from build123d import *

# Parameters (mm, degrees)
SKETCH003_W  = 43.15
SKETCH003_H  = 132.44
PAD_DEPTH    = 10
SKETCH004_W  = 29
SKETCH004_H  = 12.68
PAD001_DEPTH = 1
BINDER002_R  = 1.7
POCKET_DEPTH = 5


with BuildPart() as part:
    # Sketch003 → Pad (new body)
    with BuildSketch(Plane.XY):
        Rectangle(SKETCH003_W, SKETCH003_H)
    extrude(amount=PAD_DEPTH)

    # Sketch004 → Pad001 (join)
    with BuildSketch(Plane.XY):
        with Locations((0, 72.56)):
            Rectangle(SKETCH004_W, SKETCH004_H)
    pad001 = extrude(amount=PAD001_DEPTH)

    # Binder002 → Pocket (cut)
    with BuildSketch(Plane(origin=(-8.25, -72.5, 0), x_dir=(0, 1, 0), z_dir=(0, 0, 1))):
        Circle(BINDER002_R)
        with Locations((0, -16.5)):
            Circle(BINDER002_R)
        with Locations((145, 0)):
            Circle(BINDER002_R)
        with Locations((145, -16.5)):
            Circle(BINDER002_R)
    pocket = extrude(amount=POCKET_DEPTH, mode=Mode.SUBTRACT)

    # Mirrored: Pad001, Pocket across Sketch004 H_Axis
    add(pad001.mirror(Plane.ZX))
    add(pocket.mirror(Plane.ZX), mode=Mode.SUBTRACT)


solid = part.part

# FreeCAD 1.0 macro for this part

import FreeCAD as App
import Part
import Sketcher

V = App.Vector
Q = App.Units.Quantity

doc = App.newDocument("Part")
body = doc.addObject("PartDesign::Body", "Body")

# Sketch on XY plane
sketch1 = doc.addObject("Sketcher::SketchObject", "Sketch")
body.addObject(sketch1)
sketch1.AttachmentSupport = (doc.XY_Plane, [""])
sketch1.MapMode = "FlatFace"
sketch1.addGeometry([
    Part.LineSegment(V(-22, 66, 0), V(-22, -66, 0)),
    Part.LineSegment(V(-22, -66, 0), V(22, -66, 0)),
    Part.LineSegment(V(22, -66, 0), V(22, 66, 0)),
    Part.LineSegment(V(22, 66, 0), V(-22, 66, 0)),
], False)
sketch1.addConstraint([
    Sketcher.Constraint("Coincident", 0, 2, 1, 1),
    Sketcher.Constraint("Coincident", 1, 2, 2, 1),
    Sketcher.Constraint("Coincident", 2, 2, 3, 1),
    Sketcher.Constraint("Coincident", 3, 2, 0, 1),
    Sketcher.Constraint("Vertical", 0),
    Sketcher.Constraint("Horizontal", 1),
    Sketcher.Constraint("Vertical", 2),
    Sketcher.Constraint("Horizontal", 3),
    Sketcher.Constraint("Symmetric", 0, 2, 2, 2, -1, 1),
    Sketcher.Constraint("DistanceX", 1, 1, 1, 2, Q("43.15 mm")),
    Sketcher.Constraint("DistanceY", 0, 2, 0, 1, Q("132.44 mm")),
])
pad1 = doc.addObject("PartDesign::Pad", "Pad")
body.addObject(pad1)
pad1.Profile = sketch1
pad1.Length = 10

# Sketch on XY plane
sketch2 = doc.addObject("Sketcher::SketchObject", "Sketch001")
body.addObject(sketch2)
sketch2.AttachmentSupport = (doc.XY_Plane, [""])
sketch2.MapMode = "FlatFace"
sketch2.addGeometry([
    Part.LineSegment(V(-14, 79, 0), V(-14, 66, 0)),
    Part.LineSegment(V(-14, 66, 0), V(14, 66, 0)),
    Part.LineSegment(V(14, 66, 0), V(14, 79, 0)),
    Part.LineSegment(V(14, 79, 0), V(-14, 79, 0)),
], False)
sketch2.addConstraint([
    Sketcher.Constraint("Coincident", 0, 2, 1, 1),
    Sketcher.Constraint("Coincident", 1, 2, 2, 1),
    Sketcher.Constraint("Coincident", 2, 2, 3, 1),
    Sketcher.Constraint("Coincident", 3, 2, 0, 1),
    Sketcher.Constraint("Vertical", 0),
    Sketcher.Constraint("Horizontal", 1),
    Sketcher.Constraint("Vertical", 2),
    Sketcher.Constraint("Horizontal", 3),
    Sketcher.Constraint("DistanceX", 1, 1, 1, 2, Q("29 mm")),
    Sketcher.Constraint("DistanceY", 0, 2, 0, 1, Q("12.68 mm")),
    Sketcher.Constraint("DistanceX", 0, 2, -1, 1, Q("14.5 mm")),
    Sketcher.Constraint("DistanceY", -1, 1, 2, 2, Q("78.9 mm")),
])
pad2 = doc.addObject("PartDesign::Pad", "Pad001")
body.addObject(pad2)
pad2.Profile = sketch2
pad2.Length = 1

# Sketch on XY plane
sketch3 = doc.addObject("Sketcher::SketchObject", "Sketch002")
body.addObject(sketch3)
sketch3.AttachmentSupport = (doc.XY_Plane, [""])
sketch3.MapMode = "FlatFace"
sketch3.addGeometry([
    Part.Circle(V(-8.2, -72.5, 0), V(0, 0, 1), 1.7),
    Part.Circle(V(8.2, -72.5, 0), V(0, 0, 1), 1.7),
    Part.Circle(V(-8.2, 72.5, 0), V(0, 0, 1), 1.7),
    Part.Circle(V(8.2, 72.5, 0), V(0, 0, 1), 1.7),
], False)
sketch3.addConstraint([
    Sketcher.Constraint("Equal", 0, 1),
    Sketcher.Constraint("Equal", 1, 2),
    Sketcher.Constraint("Equal", 2, 3),
    Sketcher.Constraint("Symmetric", 1, 3, 2, 3, -1, 1),
    Sketcher.Constraint("Symmetric", 0, 3, 3, 3, -1, 1),
    Sketcher.Constraint("Symmetric", 0, 3, 1, 3, -2),
    Sketcher.Constraint("Diameter", 0, Q("3.4 mm")),
    Sketcher.Constraint("DistanceY", 0, 3, 2, 3, Q("145 mm")),
    Sketcher.Constraint("DistanceX", 0, 3, 1, 3, Q("16.5 mm")),
])
pocket1 = doc.addObject("PartDesign::Pocket", "Pocket")
body.addObject(pocket1)
pocket1.Profile = sketch3
pocket1.Length = 5
pocket1.Reversed = True
doc.recompute()

mirrored = doc.addObject("PartDesign::Mirrored", "Mirrored")
body.addObject(mirrored)
mirrored.Originals = [pad2, pocket1]
mirrored.MirrorPlane = (doc.XZ_Plane, [""])
body.Tip = mirrored

doc.recompute()
